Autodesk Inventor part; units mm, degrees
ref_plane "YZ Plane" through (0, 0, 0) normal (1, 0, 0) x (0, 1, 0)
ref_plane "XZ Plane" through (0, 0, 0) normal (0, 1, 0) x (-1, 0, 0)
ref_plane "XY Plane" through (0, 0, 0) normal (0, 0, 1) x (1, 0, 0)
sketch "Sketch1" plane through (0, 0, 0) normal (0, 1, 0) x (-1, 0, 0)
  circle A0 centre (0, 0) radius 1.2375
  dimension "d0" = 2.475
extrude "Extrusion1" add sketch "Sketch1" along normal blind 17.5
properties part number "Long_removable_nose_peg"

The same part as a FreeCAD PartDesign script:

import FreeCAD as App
import Part
import Sketcher
Q = App.Units.Quantity

doc = App.newDocument("Part")
body = doc.addObject("PartDesign::Body", "Body")

sketch1 = doc.addObject("Sketcher::SketchObject", "Sketch")
body.addObject(sketch1)
sketch1.AttachmentSupport = (doc.XZ_Plane, [""])
sketch1.MapMode = "FlatFace"
sketch1.addGeometry(Part.Circle(App.Vector(0, 0, 0), App.Vector(0, 0, 1), 1.2375), False)
sketch1.addConstraint(Sketcher.Constraint("Coincident", 0, 3, -1, 1))
sketch1.addConstraint(Sketcher.Constraint("Diameter", 0, Q("2.475 mm")))
pad1 = doc.addObject("PartDesign::Pad", "Pad")
body.addObject(pad1)
pad1.Profile = sketch1
pad1.Length = 17.5
pad1.Reversed = True

doc.recompute()
